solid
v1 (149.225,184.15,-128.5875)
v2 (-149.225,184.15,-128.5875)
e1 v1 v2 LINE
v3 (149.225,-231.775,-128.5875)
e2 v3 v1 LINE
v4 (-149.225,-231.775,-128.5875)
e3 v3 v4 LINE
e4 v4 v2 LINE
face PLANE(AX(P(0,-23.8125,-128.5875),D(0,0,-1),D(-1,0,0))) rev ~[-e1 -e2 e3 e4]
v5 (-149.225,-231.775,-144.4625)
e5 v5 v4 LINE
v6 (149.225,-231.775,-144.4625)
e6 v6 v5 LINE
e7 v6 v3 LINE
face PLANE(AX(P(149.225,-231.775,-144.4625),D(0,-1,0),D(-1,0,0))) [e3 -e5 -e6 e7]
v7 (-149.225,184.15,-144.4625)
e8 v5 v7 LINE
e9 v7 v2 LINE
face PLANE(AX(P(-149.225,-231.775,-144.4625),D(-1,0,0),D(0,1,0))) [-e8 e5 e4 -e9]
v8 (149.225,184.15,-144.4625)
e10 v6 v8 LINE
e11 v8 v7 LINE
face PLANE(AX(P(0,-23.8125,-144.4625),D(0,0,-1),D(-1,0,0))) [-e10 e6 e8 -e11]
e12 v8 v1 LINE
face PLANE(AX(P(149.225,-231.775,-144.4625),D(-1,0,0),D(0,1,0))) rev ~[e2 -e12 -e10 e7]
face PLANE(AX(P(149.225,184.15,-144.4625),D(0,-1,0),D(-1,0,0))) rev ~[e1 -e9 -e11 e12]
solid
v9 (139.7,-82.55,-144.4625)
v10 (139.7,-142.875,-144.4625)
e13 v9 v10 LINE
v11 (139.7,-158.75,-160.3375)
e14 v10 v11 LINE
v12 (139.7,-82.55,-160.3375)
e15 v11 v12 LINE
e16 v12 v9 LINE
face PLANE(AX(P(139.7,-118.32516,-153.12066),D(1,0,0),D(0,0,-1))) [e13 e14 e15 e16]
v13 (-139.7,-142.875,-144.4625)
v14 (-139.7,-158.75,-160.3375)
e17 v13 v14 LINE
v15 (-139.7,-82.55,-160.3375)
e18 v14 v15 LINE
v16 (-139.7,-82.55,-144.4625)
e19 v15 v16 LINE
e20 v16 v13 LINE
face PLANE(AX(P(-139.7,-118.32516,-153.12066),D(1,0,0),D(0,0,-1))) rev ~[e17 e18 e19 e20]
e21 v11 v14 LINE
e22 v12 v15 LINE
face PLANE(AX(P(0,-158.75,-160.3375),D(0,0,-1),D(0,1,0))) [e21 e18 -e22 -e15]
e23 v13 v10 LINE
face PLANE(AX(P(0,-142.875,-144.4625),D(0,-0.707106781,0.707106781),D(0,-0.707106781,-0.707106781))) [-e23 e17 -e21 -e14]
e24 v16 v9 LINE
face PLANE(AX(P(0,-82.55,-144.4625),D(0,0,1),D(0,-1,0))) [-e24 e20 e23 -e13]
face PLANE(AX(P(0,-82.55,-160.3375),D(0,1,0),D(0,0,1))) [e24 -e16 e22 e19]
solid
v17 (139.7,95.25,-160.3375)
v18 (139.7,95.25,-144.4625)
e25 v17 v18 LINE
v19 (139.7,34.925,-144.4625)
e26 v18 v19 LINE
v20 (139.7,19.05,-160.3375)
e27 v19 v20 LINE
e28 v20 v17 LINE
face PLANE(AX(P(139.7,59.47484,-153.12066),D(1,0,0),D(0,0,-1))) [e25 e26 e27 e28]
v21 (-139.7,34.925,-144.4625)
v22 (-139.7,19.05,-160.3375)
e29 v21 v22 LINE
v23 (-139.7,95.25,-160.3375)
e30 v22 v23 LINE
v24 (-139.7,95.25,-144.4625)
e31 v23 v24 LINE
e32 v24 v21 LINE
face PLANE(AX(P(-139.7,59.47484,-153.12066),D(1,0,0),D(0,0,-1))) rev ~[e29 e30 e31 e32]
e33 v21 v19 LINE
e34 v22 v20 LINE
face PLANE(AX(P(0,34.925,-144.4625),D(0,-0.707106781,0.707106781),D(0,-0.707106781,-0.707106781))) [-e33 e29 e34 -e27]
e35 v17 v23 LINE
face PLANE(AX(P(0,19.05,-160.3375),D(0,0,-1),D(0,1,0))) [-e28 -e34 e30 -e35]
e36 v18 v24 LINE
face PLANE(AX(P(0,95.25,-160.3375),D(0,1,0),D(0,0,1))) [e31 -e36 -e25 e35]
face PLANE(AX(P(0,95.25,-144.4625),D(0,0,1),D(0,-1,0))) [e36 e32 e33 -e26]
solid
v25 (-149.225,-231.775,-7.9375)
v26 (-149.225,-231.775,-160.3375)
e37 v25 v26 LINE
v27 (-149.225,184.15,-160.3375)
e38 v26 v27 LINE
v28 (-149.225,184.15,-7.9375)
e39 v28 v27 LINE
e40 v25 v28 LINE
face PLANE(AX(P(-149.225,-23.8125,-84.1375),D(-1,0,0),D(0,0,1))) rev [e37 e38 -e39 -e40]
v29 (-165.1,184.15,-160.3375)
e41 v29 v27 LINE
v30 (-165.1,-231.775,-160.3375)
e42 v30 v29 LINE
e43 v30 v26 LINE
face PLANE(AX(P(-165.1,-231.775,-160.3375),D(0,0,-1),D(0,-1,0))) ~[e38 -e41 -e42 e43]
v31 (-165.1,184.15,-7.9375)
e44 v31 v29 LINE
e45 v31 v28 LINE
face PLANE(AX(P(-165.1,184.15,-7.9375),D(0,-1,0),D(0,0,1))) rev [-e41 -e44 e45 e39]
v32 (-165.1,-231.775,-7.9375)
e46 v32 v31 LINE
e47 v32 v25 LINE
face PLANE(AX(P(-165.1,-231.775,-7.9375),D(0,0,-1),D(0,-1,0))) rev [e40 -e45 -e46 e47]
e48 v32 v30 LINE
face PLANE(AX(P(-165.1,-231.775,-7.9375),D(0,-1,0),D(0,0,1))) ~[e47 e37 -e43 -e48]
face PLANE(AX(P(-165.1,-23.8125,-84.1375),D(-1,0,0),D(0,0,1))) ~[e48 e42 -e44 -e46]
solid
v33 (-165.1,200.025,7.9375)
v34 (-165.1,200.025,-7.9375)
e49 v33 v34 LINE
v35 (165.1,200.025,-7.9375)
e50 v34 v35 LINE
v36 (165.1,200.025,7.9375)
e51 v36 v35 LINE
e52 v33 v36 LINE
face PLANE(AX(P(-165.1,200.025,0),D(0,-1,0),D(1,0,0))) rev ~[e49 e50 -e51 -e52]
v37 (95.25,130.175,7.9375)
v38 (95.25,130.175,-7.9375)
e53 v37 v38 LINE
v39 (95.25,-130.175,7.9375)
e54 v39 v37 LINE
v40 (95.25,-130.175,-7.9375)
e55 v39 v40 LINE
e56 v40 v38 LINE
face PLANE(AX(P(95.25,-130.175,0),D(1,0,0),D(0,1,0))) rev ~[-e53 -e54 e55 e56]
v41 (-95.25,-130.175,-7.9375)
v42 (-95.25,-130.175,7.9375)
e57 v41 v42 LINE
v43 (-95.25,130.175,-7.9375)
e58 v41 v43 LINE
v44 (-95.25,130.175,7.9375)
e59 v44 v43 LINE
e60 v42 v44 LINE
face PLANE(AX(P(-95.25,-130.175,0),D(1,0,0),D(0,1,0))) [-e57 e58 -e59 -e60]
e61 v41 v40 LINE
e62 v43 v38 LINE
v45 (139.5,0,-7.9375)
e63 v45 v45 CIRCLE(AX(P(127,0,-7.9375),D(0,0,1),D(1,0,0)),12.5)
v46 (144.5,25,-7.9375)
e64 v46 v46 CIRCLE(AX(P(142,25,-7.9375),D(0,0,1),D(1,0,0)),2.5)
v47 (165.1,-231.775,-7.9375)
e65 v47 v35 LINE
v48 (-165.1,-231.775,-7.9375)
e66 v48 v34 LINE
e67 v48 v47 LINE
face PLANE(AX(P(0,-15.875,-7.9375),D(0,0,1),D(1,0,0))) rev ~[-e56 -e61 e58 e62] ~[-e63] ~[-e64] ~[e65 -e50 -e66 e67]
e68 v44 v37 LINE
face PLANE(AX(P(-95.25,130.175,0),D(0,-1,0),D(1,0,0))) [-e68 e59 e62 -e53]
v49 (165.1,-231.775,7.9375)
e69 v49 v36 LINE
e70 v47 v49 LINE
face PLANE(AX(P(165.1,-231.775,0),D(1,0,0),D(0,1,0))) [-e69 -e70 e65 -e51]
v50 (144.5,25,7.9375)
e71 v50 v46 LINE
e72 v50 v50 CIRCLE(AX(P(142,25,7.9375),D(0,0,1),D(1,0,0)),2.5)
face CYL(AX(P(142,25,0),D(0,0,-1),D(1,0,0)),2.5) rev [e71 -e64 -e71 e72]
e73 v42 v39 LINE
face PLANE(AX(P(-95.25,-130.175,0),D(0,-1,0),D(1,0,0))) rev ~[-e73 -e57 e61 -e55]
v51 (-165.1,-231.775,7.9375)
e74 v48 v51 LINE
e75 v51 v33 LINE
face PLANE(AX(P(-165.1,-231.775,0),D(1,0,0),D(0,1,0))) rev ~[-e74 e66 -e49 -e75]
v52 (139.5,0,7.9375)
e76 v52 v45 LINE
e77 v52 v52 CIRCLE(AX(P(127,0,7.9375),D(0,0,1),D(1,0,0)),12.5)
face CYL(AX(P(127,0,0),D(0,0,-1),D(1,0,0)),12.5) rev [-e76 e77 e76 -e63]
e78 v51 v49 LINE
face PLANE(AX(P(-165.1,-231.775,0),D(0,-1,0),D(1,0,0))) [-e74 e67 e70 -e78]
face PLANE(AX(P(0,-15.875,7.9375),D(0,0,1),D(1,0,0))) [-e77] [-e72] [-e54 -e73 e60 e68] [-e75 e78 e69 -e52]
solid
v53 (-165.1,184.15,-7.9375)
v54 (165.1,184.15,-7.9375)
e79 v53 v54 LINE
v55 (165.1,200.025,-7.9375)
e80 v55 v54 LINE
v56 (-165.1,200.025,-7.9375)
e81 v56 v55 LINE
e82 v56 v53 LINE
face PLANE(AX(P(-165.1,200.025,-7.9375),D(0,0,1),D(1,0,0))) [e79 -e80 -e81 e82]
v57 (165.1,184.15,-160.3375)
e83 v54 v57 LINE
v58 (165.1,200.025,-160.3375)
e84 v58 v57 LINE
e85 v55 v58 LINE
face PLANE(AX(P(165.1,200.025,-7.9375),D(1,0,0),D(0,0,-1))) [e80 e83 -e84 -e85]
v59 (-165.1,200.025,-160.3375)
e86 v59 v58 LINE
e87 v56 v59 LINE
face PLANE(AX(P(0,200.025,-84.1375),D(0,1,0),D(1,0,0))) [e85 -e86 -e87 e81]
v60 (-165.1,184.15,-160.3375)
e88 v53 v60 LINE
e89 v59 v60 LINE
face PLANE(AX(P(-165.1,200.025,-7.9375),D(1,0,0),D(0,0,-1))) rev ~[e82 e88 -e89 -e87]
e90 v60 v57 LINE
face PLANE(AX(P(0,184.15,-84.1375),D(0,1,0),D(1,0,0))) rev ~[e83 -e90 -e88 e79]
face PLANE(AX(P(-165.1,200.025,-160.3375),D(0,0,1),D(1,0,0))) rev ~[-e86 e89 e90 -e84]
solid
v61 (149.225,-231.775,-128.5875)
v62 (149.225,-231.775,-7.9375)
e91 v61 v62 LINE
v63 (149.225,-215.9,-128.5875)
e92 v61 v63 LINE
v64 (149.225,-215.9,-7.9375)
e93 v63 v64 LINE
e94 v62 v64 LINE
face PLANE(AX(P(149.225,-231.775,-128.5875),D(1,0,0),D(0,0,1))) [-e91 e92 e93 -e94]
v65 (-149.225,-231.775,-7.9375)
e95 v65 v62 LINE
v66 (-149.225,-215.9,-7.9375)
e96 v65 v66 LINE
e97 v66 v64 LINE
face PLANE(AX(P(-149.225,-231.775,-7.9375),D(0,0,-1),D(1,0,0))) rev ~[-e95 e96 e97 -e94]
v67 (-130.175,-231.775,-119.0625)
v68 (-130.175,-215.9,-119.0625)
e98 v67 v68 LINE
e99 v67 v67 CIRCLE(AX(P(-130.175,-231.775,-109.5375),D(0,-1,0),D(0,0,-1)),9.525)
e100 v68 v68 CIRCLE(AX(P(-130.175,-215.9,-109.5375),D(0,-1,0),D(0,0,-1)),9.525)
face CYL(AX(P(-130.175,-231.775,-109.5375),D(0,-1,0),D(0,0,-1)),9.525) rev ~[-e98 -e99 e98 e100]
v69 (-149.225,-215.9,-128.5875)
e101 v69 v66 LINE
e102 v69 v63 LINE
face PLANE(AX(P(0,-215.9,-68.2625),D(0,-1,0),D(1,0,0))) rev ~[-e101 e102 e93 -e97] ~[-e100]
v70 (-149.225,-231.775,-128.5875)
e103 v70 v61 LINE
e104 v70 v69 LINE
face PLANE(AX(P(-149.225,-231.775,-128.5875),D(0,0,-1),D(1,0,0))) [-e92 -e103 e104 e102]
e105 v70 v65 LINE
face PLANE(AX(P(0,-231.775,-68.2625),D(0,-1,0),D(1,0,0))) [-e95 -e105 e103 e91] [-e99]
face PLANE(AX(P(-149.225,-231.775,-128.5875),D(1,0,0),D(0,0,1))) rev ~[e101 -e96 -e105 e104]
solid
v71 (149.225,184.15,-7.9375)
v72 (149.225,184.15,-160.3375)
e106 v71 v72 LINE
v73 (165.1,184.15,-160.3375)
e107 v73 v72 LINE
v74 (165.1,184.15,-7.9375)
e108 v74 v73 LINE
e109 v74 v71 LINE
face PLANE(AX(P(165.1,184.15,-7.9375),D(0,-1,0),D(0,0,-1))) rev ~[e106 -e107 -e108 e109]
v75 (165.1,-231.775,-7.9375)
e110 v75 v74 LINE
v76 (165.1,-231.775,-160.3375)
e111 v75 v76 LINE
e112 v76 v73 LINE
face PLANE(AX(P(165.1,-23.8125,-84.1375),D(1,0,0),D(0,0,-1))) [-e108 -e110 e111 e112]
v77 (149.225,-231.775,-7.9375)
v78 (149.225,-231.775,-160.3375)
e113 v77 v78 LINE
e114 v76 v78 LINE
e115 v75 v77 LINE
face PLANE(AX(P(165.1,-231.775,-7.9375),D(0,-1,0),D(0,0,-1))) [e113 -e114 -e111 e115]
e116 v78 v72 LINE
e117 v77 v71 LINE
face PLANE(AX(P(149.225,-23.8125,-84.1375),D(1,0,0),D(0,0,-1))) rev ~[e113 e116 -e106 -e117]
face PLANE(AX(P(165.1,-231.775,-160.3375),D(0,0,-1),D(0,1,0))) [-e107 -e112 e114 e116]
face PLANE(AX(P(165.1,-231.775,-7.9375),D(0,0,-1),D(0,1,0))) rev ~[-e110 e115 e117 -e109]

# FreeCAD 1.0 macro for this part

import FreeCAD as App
import Part
import Sketcher
Q = App.Units.Quantity


def add_polygon(sketch, points):
    """Adds a closed chain of lines whose ends are joined by coincident constraints."""
    first, n = sketch.GeometryCount, len(points)
    for a, b in zip(points, points[1:] + points[:1]):
        sketch.addGeometry(Part.LineSegment(App.Vector(*a, 0), App.Vector(*b, 0)), False)
    for i in range(n):
        sketch.addConstraint(Sketcher.Constraint("Coincident", first + i, 2, first + (i + 1) % n, 1))

doc = App.newDocument("Part")
params = doc.addObject("Spreadsheet::Sheet", "Params")
for row, (alias, value) in enumerate([
    ("sketch1_width", "13 in"),
    ("sketch1_height", "17 in"),
    ("sketch1_width2", "7.5 in"),
    ("sketch1_height2", "10.25 in"),
    ("pad1_length", "0.625 in"),
    ("sketch2_height", "6 in"),
    ("sketch2_width", "16.375 in"),
    ("pad2_length", "0.625 in"),
    ("sketch3_width", "11.75 in"),
    ("sketch3_height", "16.375 in"),
    ("pad3_length", "0.625 in"),
    ("sketch4_diameter", "0.75 in"),
    ("sketch4_width", "11.75 in"),
    ("sketch4_height", "4.75 in"),
    ("pad4_length", "0.625 in"),
    ("sketch5_width", "13 in"),
    ("sketch5_height", "6 in"),
    ("pad5_length", "0.625 in"),
    ("sketch6_width", "3 in"),
    ("sketch6_width2", "2.375 in"),
    ("pad6_length", "11 in"),
    ("sketch7_width", "3 in"),
    ("sketch7_width2", "2.375 in"),
    ("pad7_length", "11 in"),
], start=1):
    params.set(f"A{row}", alias)
    params.set(f"B{row}", "=" + value)
    params.setAlias(f"B{row}", alias)

body = doc.addObject("PartDesign::Body", "Body")

# Sketch on XY plane
sketch1 = body.newObject("Sketcher::SketchObject", "Sketch")
sketch1.AttachmentSupport = (doc.getObject("XY_Plane"), [""])
sketch1.MapMode = "FlatFace"
add_polygon(sketch1, [(-165.1, 200), (-165.1, -231.8), (165.1, -231.8), (165.1, 200)])  # lines 0-3
add_polygon(sketch1, [(95.2, -130.2), (-95.2, -130.2), (-95.2, 130.2), (95.2, 130.2)])  # lines 4-7
sketch1.addGeometry(Part.Circle(App.Vector(127, 0, 0), App.Vector(0, 0, 1), 12.5), False)  # 8
sketch1.addGeometry(Part.Circle(App.Vector(142, 25, 0), App.Vector(0, 0, 1), 2.5), False)  # 9
sketch1.addConstraint(Sketcher.Constraint("Vertical", 0))
sketch1.addConstraint(Sketcher.Constraint("Horizontal", 1))
sketch1.addConstraint(Sketcher.Constraint("Vertical", 2))
sketch1.addConstraint(Sketcher.Constraint("Horizontal", 3))
sketch1.addConstraint(Sketcher.Constraint("Horizontal", 4))
sketch1.addConstraint(Sketcher.Constraint("Vertical", 5))
sketch1.addConstraint(Sketcher.Constraint("Horizontal", 6))
sketch1.addConstraint(Sketcher.Constraint("Vertical", 7))
sketch1.addConstraint(Sketcher.Constraint("Symmetric", 4, 2, 6, 2, -1, 1))
sketch1.addConstraint(Sketcher.Constraint("PointOnObject", 8, 3, -1))
sketch1.addConstraint(Sketcher.Constraint("DistanceX", 1, 1, 1, 2, Q("13 in")))
sketch1.addConstraint(Sketcher.Constraint("DistanceY", 0, 2, 0, 1, Q("17 in")))
sketch1.addConstraint(Sketcher.Constraint("DistanceX", 4, 2, 4, 1, Q("7.5 in")))
sketch1.addConstraint(Sketcher.Constraint("DistanceX", -1, 1, 8, 3, Q("5 in")))
sketch1.addConstraint(Sketcher.Constraint("DistanceY", 0, 2, 4, 2, Q("4 in")))
sketch1.addConstraint(Sketcher.Constraint("DistanceY", 5, 1, 5, 2, Q("10.25 in")))
sketch1.addConstraint(Sketcher.Constraint("DistanceX", 0, 2, -1, 1, Q("6.5 in")))
sketch1.addConstraint(Sketcher.Constraint("Diameter", 8, Q("25 mm")))
sketch1.addConstraint(Sketcher.Constraint("Diameter", 9, Q("5 mm")))
sketch1.addConstraint(Sketcher.Constraint("DistanceX", -1, 1, 9, 3, Q("142 mm")))
sketch1.addConstraint(Sketcher.Constraint("DistanceY", -1, 1, 9, 3, Q("25 mm")))
sketch1.setExpression("Constraints[18]", "Params.sketch1_width")
sketch1.setExpression("Constraints[19]", "Params.sketch1_height")
sketch1.setExpression("Constraints[20]", "Params.sketch1_width2")
sketch1.setExpression("Constraints[23]", "Params.sketch1_height2")
pad1 = body.newObject("PartDesign::Pad", "Pad")
pad1.Profile = sketch1
pad1.setExpression("Length", "Params.pad1_length")
pad1.Midplane = True
body2 = doc.addObject("PartDesign::Body", "Body001")

# Sketch on YZ plane
sketch2 = body2.newObject("Sketcher::SketchObject", "Sketch001")
sketch2.AttachmentSupport = (doc.getObject("YZ_Plane001"), [""])
sketch2.MapMode = "FlatFace"
sketch2.AttachmentOffset = App.Placement(App.Vector(0, 0, 6.5 * 25.4), App.Rotation())
add_polygon(sketch2, [(184, -8), (-232, -8), (-232, -160), (184, -160)])  # lines 0-3
sketch2.addConstraint(Sketcher.Constraint("Horizontal", 0))
sketch2.addConstraint(Sketcher.Constraint("Vertical", 1))
sketch2.addConstraint(Sketcher.Constraint("Horizontal", 2))
sketch2.addConstraint(Sketcher.Constraint("Vertical", 3))
sketch2.addConstraint(Sketcher.Constraint("DistanceY", 1, 2, 1, 1, Q("6 in")))
sketch2.addConstraint(Sketcher.Constraint("DistanceX", 0, 2, 0, 1, Q("16.375 in")))
sketch2.addConstraint(Sketcher.Constraint("DistanceX", -1, 1, 2, 2, Q("7.25 in")))
sketch2.addConstraint(Sketcher.Constraint("DistanceY", 0, 2, -1, 1, Q("0.3125 in")))
sketch2.setExpression("Constraints[8]", "Params.sketch2_height")
sketch2.setExpression("Constraints[9]", "Params.sketch2_width")
pad2 = body2.newObject("PartDesign::Pad", "Pad001")
pad2.Profile = sketch2
pad2.setExpression("Length", "Params.pad2_length")
pad2.Reversed = True
body3 = doc.addObject("PartDesign::Body", "Body002")
doc.recompute()

mirroring = doc.addObject("Part::Mirroring", "Mirroring")
mirroring.Source = body2
mirroring.Base = App.Vector(0, 0, 0)
mirroring.Normal = App.Vector(1, 0, 0)
body3.BaseFeature = mirroring
doc.recompute()
body4 = doc.addObject("PartDesign::Body", "Body003")

# Sketch on XY plane
sketch3 = body4.newObject("Sketcher::SketchObject", "Sketch002")
sketch3.AttachmentSupport = (doc.getObject("XY_Plane003"), [""])
sketch3.MapMode = "FlatFace"
sketch3.AttachmentOffset = App.Placement(App.Vector(0, 0, -5.6875 * 25.4), App.Rotation())
add_polygon(sketch3, [(149, 184), (149, -232), (-149, -232), (-149, 184)])  # lines 0-3
sketch3.addConstraint(Sketcher.Constraint("Vertical", 0))
sketch3.addConstraint(Sketcher.Constraint("Horizontal", 1))
sketch3.addConstraint(Sketcher.Constraint("Vertical", 2))
sketch3.addConstraint(Sketcher.Constraint("Horizontal", 3))
sketch3.addConstraint(Sketcher.Constraint("DistanceX", 1, 2, 1, 1, Q("11.75 in")))
sketch3.addConstraint(Sketcher.Constraint("DistanceY", 0, 2, 0, 1, Q("16.375 in")))
sketch3.addConstraint(Sketcher.Constraint("DistanceY", -1, 1, 2, 2, Q("7.25 in")))
sketch3.addConstraint(Sketcher.Constraint("DistanceX", -1, 1, 0, 2, Q("5.875 in")))
sketch3.setExpression("Constraints[8]", "Params.sketch3_width")
sketch3.setExpression("Constraints[9]", "Params.sketch3_height")
pad3 = body4.newObject("PartDesign::Pad", "Pad002")
pad3.Profile = sketch3
pad3.setExpression("Length", "Params.pad3_length")
body5 = doc.addObject("PartDesign::Body", "Body004")

# Sketch on XZ plane
sketch4 = body5.newObject("Sketcher::SketchObject", "Sketch003")
sketch4.AttachmentSupport = (doc.getObject("XZ_Plane004"), [""])
sketch4.MapMode = "FlatFace"
sketch4.AttachmentOffset = App.Placement(App.Vector(0, 0, 9.125 * 25.4), App.Rotation())
add_polygon(sketch4, [(-149, -8), (-149, -129), (149, -129), (149, -8)])  # lines 0-3
sketch4.addGeometry(Part.Circle(App.Vector(-130, -110, 0), App.Vector(0, 0, 1), 10), False)  # 4
sketch4.addConstraint(Sketcher.Constraint("Vertical", 0))
sketch4.addConstraint(Sketcher.Constraint("Horizontal", 1))
sketch4.addConstraint(Sketcher.Constraint("Vertical", 2))
sketch4.addConstraint(Sketcher.Constraint("Horizontal", 3))
sketch4.addConstraint(Sketcher.Constraint("Diameter", 4, Q("0.75 in")))
sketch4.addConstraint(Sketcher.Constraint("DistanceX", 4, 3, 1, 2, Q("11 in")))
sketch4.addConstraint(Sketcher.Constraint("DistanceY", 4, 3, 2, 2, Q("4 in")))
sketch4.addConstraint(Sketcher.Constraint("DistanceX", 1, 1, 1, 2, Q("11.75 in")))
sketch4.addConstraint(Sketcher.Constraint("DistanceY", 0, 2, 0, 1, Q("4.75 in")))
sketch4.addConstraint(Sketcher.Constraint("DistanceX", 4, 3, -1, 1, Q("5.125 in")))
sketch4.addConstraint(Sketcher.Constraint("DistanceY", 4, 3, -1, 1, Q("4.3125 in")))
sketch4.setExpression("Constraints[8]", "Params.sketch4_diameter")
sketch4.setExpression("Constraints[11]", "Params.sketch4_width")
sketch4.setExpression("Constraints[12]", "Params.sketch4_height")
pad4 = body5.newObject("PartDesign::Pad", "Pad003")
pad4.Profile = sketch4
pad4.setExpression("Length", "Params.pad4_length")
pad4.Reversed = True
body6 = doc.addObject("PartDesign::Body", "Body005")

# Sketch on XZ plane
sketch5 = body6.newObject("Sketcher::SketchObject", "Sketch004")
sketch5.AttachmentSupport = (doc.getObject("XZ_Plane005"), [""])
sketch5.MapMode = "FlatFace"
sketch5.AttachmentOffset = App.Placement(App.Vector(0, 0, -7.875 * 25.4), App.Rotation())
add_polygon(sketch5, [(-165, -160), (-165, -8), (165, -8), (165, -160)])  # lines 0-3
sketch5.addConstraint(Sketcher.Constraint("Vertical", 0))
sketch5.addConstraint(Sketcher.Constraint("Horizontal", 1))
sketch5.addConstraint(Sketcher.Constraint("Vertical", 2))
sketch5.addConstraint(Sketcher.Constraint("Horizontal", 3))
sketch5.addConstraint(Sketcher.Constraint("DistanceX", 1, 1, 1, 2, Q("13 in")))
sketch5.addConstraint(Sketcher.Constraint("DistanceY", 0, 1, 0, 2, Q("6 in")))
sketch5.addConstraint(Sketcher.Constraint("DistanceX", 0, 2, -1, 1, Q("6.5 in")))
sketch5.addConstraint(Sketcher.Constraint("DistanceY", 0, 2, -1, 1, Q("0.3125 in")))
sketch5.setExpression("Constraints[8]", "Params.sketch5_width")
sketch5.setExpression("Constraints[9]", "Params.sketch5_height")
pad5 = body6.newObject("PartDesign::Pad", "Pad004")
pad5.Profile = sketch5
pad5.setExpression("Length", "Params.pad5_length")
body7 = doc.addObject("PartDesign::Body", "Body006")

# Sketch on YZ plane
sketch6 = body7.newObject("Sketcher::SketchObject", "Sketch005")
sketch6.AttachmentSupport = (doc.getObject("YZ_Plane006"), [""])
sketch6.MapMode = "FlatFace"
add_polygon(sketch6, [(95, -144), (35, -144), (19, -160), (95, -160)])  # lines 0-3
sketch6.addConstraint(Sketcher.Constraint("Horizontal", 0))
sketch6.addConstraint(Sketcher.Constraint("Horizontal", 2))
sketch6.addConstraint(Sketcher.Constraint("Vertical", 3))
sketch6.addConstraint(Sketcher.Constraint("DistanceX", 2, 1, 2, 2, Q("3 in")))
sketch6.addConstraint(Sketcher.Constraint("Angle", 1, Q("-135 deg")))
sketch6.addConstraint(Sketcher.Constraint("DistanceX", 0, 2, 0, 1, Q("2.375 in")))
sketch6.addConstraint(Sketcher.Constraint("DistanceX", -1, 1, 1, 2, Q("0.75 in")))
sketch6.addConstraint(Sketcher.Constraint("DistanceY", 0, 2, -1, 1, Q("5.6875 in")))
sketch6.setExpression("Constraints[7]", "Params.sketch6_width")
sketch6.setExpression("Constraints[9]", "Params.sketch6_width2")
pad6 = body7.newObject("PartDesign::Pad", "Pad005")
pad6.Profile = sketch6
pad6.setExpression("Length", "Params.pad6_length")
pad6.Midplane = True
body8 = doc.addObject("PartDesign::Body", "Body007")

# Sketch on YZ plane
sketch7 = body8.newObject("Sketcher::SketchObject", "Sketch006")
sketch7.AttachmentSupport = (doc.getObject("YZ_Plane007"), [""])
sketch7.MapMode = "FlatFace"
add_polygon(sketch7, [(-83, -160), (-83, -144), (-143, -144), (-159, -160)])  # lines 0-3
sketch7.addConstraint(Sketcher.Constraint("Vertical", 0))
sketch7.addConstraint(Sketcher.Constraint("Horizontal", 1))
sketch7.addConstraint(Sketcher.Constraint("Horizontal", 3))
sketch7.addConstraint(Sketcher.Constraint("DistanceX", 3, 1, 3, 2, Q("3 in")))
sketch7.addConstraint(Sketcher.Constraint("Angle", 2, Q("-135 deg")))
sketch7.addConstraint(Sketcher.Constraint("DistanceX", 1, 2, 1, 1, Q("2.375 in")))
sketch7.addConstraint(Sketcher.Constraint("DistanceX", 0, 2, -1, 1, Q("3.25 in")))
sketch7.addConstraint(Sketcher.Constraint("DistanceY", 0, 2, -1, 1, Q("5.6875 in")))
sketch7.setExpression("Constraints[7]", "Params.sketch7_width")
sketch7.setExpression("Constraints[9]", "Params.sketch7_width2")
pad7 = body8.newObject("PartDesign::Pad", "Pad006")
pad7.Profile = sketch7
pad7.setExpression("Length", "Params.pad7_length")
pad7.Midplane = True
mirroring.Visibility = False

doc.recompute()
